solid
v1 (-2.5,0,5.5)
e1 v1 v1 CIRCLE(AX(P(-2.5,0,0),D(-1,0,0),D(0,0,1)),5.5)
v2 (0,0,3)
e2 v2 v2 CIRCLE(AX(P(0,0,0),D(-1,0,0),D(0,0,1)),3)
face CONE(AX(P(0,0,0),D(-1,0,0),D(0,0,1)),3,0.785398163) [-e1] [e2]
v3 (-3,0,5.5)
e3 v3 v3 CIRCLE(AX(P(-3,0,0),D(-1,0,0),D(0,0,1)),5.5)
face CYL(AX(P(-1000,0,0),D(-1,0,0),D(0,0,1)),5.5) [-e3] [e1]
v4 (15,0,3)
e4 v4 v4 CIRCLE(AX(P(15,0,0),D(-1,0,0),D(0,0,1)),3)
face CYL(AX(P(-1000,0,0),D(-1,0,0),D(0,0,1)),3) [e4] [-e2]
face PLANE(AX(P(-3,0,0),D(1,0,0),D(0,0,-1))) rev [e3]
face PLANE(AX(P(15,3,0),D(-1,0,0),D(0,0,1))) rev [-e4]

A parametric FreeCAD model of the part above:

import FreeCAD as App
import Part
import Sketcher
Q = App.Units.Quantity


def add_polygon(sketch, points):
    """Adds a closed chain of lines whose ends are joined by coincident constraints."""
    first, n = sketch.GeometryCount, len(points)
    for a, b in zip(points, points[1:] + points[:1]):
        sketch.addGeometry(Part.LineSegment(App.Vector(*a, 0), App.Vector(*b, 0)), False)
    for i in range(n):
        sketch.addConstraint(Sketcher.Constraint("Coincident", first + i, 2, first + (i + 1) % n, 1))

doc = App.newDocument("Part")
params = doc.addObject("Spreadsheet::Sheet", "Params")
for row, (alias, value) in enumerate([
    ("sketch1_width", "18 mm"),
    ("sketch1_width2", "15 mm"),
    ("sketch1_height", "3 mm"),
    ("sketch1_width3", "0.5 mm"),
    ("revolution_angle", "360 deg"),
], start=1):
    params.set(f"A{row}", alias)
    params.set(f"B{row}", "=" + value)
    params.setAlias(f"B{row}", alias)

body = doc.addObject("PartDesign::Body", "Body")

# Sketch on XY plane
sketch1 = doc.addObject("Sketcher::SketchObject", "Sketch")
body.addObject(sketch1)
sketch1.AttachmentSupport = (doc.XY_Plane, [""])
sketch1.MapMode = "FlatFace"
add_polygon(sketch1, [(-3, 5.5), (-3, 0), (15, 0), (15, 3), (0, 3), (-2.5, 5.5)])  # lines 0-5
sketch1.addConstraint(Sketcher.Constraint("Vertical", 0))
sketch1.addConstraint(Sketcher.Constraint("Horizontal", 1))
sketch1.addConstraint(Sketcher.Constraint("Vertical", 2))
sketch1.addConstraint(Sketcher.Constraint("Horizontal", 3))
sketch1.addConstraint(Sketcher.Constraint("Horizontal", 5))
sketch1.addConstraint(Sketcher.Constraint("PointOnObject", 0, 2, -1))
sketch1.addConstraint(Sketcher.Constraint("PointOnObject", 3, 2, -2))
sketch1.addConstraint(Sketcher.Constraint("DistanceX", 1, 1, 1, 2, 18.0))
sketch1.addConstraint(Sketcher.Constraint("DistanceX", 3, 2, 3, 1, 15.0))
sketch1.addConstraint(Sketcher.Constraint("DistanceY", 2, 1, 2, 2, 3.0))
sketch1.addConstraint(Sketcher.Constraint("Angle", 4, Q("135 deg")))
sketch1.addConstraint(Sketcher.Constraint("DistanceX", 5, 2, 5, 1, 0.5))
sketch1.setExpression("Constraints[13]", "Params.sketch1_width")
sketch1.setExpression("Constraints[14]", "Params.sketch1_width2")
sketch1.setExpression("Constraints[15]", "Params.sketch1_height")
sketch1.setExpression("Constraints[17]", "Params.sketch1_width3")
revolution = doc.addObject("PartDesign::Revolution", "Revolution")
body.addObject(revolution)
revolution.Profile = sketch1
revolution.ReferenceAxis = (sketch1, ["H_Axis"])
revolution.setExpression("Angle", "Params.revolution_angle")

doc.recompute()
